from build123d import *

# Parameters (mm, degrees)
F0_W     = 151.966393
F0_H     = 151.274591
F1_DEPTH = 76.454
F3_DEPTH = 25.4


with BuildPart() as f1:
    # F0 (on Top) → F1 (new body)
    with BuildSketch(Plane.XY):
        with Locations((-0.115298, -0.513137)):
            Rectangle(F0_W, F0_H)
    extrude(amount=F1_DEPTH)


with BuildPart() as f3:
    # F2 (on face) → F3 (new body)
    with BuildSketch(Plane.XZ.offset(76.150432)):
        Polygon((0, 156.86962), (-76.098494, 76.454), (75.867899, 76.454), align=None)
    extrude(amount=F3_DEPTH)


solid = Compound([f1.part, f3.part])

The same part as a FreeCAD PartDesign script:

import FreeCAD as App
import Part
import Sketcher
from FreeCAD import Vector
Q = App.Units.Quantity


def add_polygon(sketch, points):
    """Adds a closed chain of lines whose ends are joined by coincident constraints."""
    first, n = sketch.GeometryCount, len(points)
    for a, b in zip(points, points[1:] + points[:1]):
        sketch.addGeometry(Part.LineSegment(App.Vector(*a, 0), App.Vector(*b, 0)), False)
    for i in range(n):
        sketch.addConstraint(Sketcher.Constraint("Coincident", first + i, 2, first + (i + 1) % n, 1))

doc = App.newDocument("Part")
body = doc.addObject("PartDesign::Body", "Body")

sketch1 = body.newObject("Sketcher::SketchObject", "Sketch")
sketch1.AttachmentSupport = (doc.getObject("XY_Plane"), [""])
sketch1.MapMode = "FlatFace"
add_polygon(sketch1, [(-76, 75), (-76, -76), (76, -76), (76, 75)])
sketch1.addConstraint(Sketcher.Constraint("Vertical", 0))
sketch1.addConstraint(Sketcher.Constraint("Horizontal", 1))
sketch1.addConstraint(Sketcher.Constraint("Vertical", 2))
sketch1.addConstraint(Sketcher.Constraint("Horizontal", 3))
sketch1.addConstraint(Sketcher.Constraint("DistanceY", 0, 2, 0, 1, Q("151.274591 mm")))
sketch1.addConstraint(Sketcher.Constraint("DistanceX", -1, 1, 1, 2, Q("75.867898 mm")))
sketch1.addConstraint(Sketcher.Constraint("DistanceX", 1, 1, 1, 2, Q("151.966393 mm")))
sketch1.addConstraint(Sketcher.Constraint("DistanceY", -1, 1, 2, 2, Q("75.124158 mm")))
pad1 = body.newObject("PartDesign::Pad", "Pad")
pad1.Profile = sketch1
pad1.Length = Q("3.01 in")
body2 = doc.addObject("PartDesign::Body", "Body001")

sketch2 = body2.newObject("Sketcher::SketchObject", "Sketch001")
sketch2.AttachmentSupport = (doc.getObject("XZ_Plane001"), [""])
sketch2.MapMode = "FlatFace"
sketch2.AttachmentOffset = App.Placement(Vector(0, 0, 76.150432), App.Rotation())
add_polygon(sketch2, [(0, 157), (-76, 76), (76, 76)])
sketch2.addConstraint(Sketcher.Constraint("Horizontal", 1))
sketch2.addConstraint(Sketcher.Constraint("PointOnObject", 2, 2, -2))
sketch2.addConstraint(Sketcher.Constraint("DistanceY", -1, 1, 0, 2, Q("3.01 in")))
sketch2.addConstraint(Sketcher.Constraint("Angle", 0, Q("-133.420012 deg")))
sketch2.addConstraint(Sketcher.Constraint("DistanceX", -1, 1, 1, 2, Q("75.867899 mm")))
sketch2.addConstraint(Sketcher.Constraint("DistanceX", 1, 1, 1, 2, Q("151.966393 mm")))
pad2 = body2.newObject("PartDesign::Pad", "Pad001")
pad2.Profile = sketch2
pad2.Length = Q("1 in")

doc.recompute()
